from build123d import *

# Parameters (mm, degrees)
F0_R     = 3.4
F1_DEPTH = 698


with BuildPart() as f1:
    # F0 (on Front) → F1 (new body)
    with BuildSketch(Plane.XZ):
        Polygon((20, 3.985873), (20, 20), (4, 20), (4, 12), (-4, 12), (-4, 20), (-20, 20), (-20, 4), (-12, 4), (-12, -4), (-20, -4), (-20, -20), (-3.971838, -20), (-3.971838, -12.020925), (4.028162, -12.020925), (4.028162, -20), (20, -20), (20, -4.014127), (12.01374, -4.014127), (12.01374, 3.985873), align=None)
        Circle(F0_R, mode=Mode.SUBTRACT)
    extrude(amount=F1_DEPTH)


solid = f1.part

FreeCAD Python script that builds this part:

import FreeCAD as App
import Part
import Sketcher
from FreeCAD import Vector
Q = App.Units.Quantity

doc = App.newDocument("Part")
body = doc.addObject("PartDesign::Body", "Body")

# Sketch on XZ plane
sketch1 = doc.addObject("Sketcher::SketchObject", "Sketch")
body.addObject(sketch1)
sketch1.AttachmentSupport = (doc.XZ_Plane, [""])
sketch1.MapMode = "FlatFace"
sketch1.addGeometry([
    Part.LineSegment(Vector(20, 3.985873, 0), Vector(20, 20, 0)),  # 0
    Part.LineSegment(Vector(20, 20, 0), Vector(4, 20, 0)),  # 1
    Part.LineSegment(Vector(4, 20, 0), Vector(4, 12, 0)),  # 2
    Part.LineSegment(Vector(4, 12, 0), Vector(-4, 12, 0)),  # 3
    Part.LineSegment(Vector(-4, 12, 0), Vector(-4, 20, 0)),  # 4
    Part.LineSegment(Vector(-4, 20, 0), Vector(-20, 20, 0)),  # 5
    Part.LineSegment(Vector(-20, 20, 0), Vector(-20, 4, 0)),  # 6
    Part.LineSegment(Vector(-20, 4, 0), Vector(-12, 4, 0)),  # 7
    Part.LineSegment(Vector(-12, 4, 0), Vector(-12, -4, 0)),  # 8
    Part.LineSegment(Vector(-12, -4, 0), Vector(-20, -4, 0)),  # 9
    Part.LineSegment(Vector(-20, -4, 0), Vector(-20, -20, 0)),  # 10
    Part.LineSegment(Vector(-20, -20, 0), Vector(-3.971838, -20, 0)),  # 11
    Part.LineSegment(Vector(-3.971838, -20, 0), Vector(-3.971838, -12.020925, 0)),  # 12
    Part.LineSegment(Vector(-3.971838, -12.020925, 0), Vector(4.028162, -12.020925, 0)),  # 13
    Part.LineSegment(Vector(4.028162, -12.020925, 0), Vector(4.028162, -20, 0)),  # 14
    Part.LineSegment(Vector(4.028162, -20, 0), Vector(20, -20, 0)),  # 15
    Part.LineSegment(Vector(20, -20, 0), Vector(20, -4.014127, 0)),  # 16
    Part.LineSegment(Vector(20, -4.014127, 0), Vector(12.01374, -4.014127, 0)),  # 17
    Part.LineSegment(Vector(12.01374, -4.014127, 0), Vector(12.01374, 3.985873, 0)),  # 18
    Part.LineSegment(Vector(12.01374, 3.985873, 0), Vector(20, 3.985873, 0)),  # 19
    Part.Circle(Vector(0, 0, 0), Vector(0, 0, 1), 3.4),  # 20
], False)
sketch1.addConstraint([
    Sketcher.Constraint("Coincident", 0, 2, 1, 1),
    Sketcher.Constraint("Coincident", 1, 2, 2, 1),
    Sketcher.Constraint("Coincident", 2, 2, 3, 1),
    Sketcher.Constraint("Coincident", 3, 2, 4, 1),
    Sketcher.Constraint("Coincident", 4, 2, 5, 1),
    Sketcher.Constraint("Coincident", 5, 2, 6, 1),
    Sketcher.Constraint("Coincident", 6, 2, 7, 1),
    Sketcher.Constraint("Coincident", 7, 2, 8, 1),
    Sketcher.Constraint("Coincident", 8, 2, 9, 1),
    Sketcher.Constraint("Coincident", 9, 2, 10, 1),
    Sketcher.Constraint("Coincident", 10, 2, 11, 1),
    Sketcher.Constraint("Coincident", 11, 2, 12, 1),
    Sketcher.Constraint("Coincident", 12, 2, 13, 1),
    Sketcher.Constraint("Coincident", 13, 2, 14, 1),
    Sketcher.Constraint("Coincident", 14, 2, 15, 1),
    Sketcher.Constraint("Coincident", 15, 2, 16, 1),
    Sketcher.Constraint("Coincident", 16, 2, 17, 1),
    Sketcher.Constraint("Coincident", 17, 2, 18, 1),
    Sketcher.Constraint("Coincident", 18, 2, 19, 1),
    Sketcher.Constraint("Coincident", 19, 2, 0, 1),
    Sketcher.Constraint("Vertical", 0),
    Sketcher.Constraint("Horizontal", 1),
    Sketcher.Constraint("Vertical", 2),
    Sketcher.Constraint("Horizontal", 3),
    Sketcher.Constraint("Vertical", 4),
    Sketcher.Constraint("Horizontal", 5),
    Sketcher.Constraint("Vertical", 6),
    Sketcher.Constraint("Horizontal", 7),
    Sketcher.Constraint("Vertical", 8),
    Sketcher.Constraint("Horizontal", 9),
    Sketcher.Constraint("Vertical", 10),
    Sketcher.Constraint("Horizontal", 11),
    Sketcher.Constraint("Vertical", 12),
    Sketcher.Constraint("Horizontal", 13),
    Sketcher.Constraint("Vertical", 14),
    Sketcher.Constraint("Horizontal", 15),
    Sketcher.Constraint("Vertical", 16),
    Sketcher.Constraint("Horizontal", 17),
    Sketcher.Constraint("Vertical", 18),
    Sketcher.Constraint("Horizontal", 19),
    Sketcher.Constraint("Coincident", 20, 3, -1, 1),
    Sketcher.Constraint("Symmetric", 0, 2, 10, 2, -1, 1),
    Sketcher.Constraint("Symmetric", 5, 2, 15, 2, -1, 1),
    Sketcher.Constraint("Symmetric", 1, 2, 4, 2, -2),
    Sketcher.Constraint("Symmetric", 6, 2, 9, 2, -1),
    Sketcher.Constraint("Equal", 3, 7),
    Sketcher.Constraint("Equal", 9, 13),
    Sketcher.Constraint("Equal", 13, 2),
    Sketcher.Constraint("Equal", 5, 6),
    Sketcher.Constraint("Equal", 4, 8),
    Sketcher.Constraint("Equal", 8, 18),
    Sketcher.Constraint("Diameter", 20, Q("6.8 mm")),
    Sketcher.Constraint("DistanceX", 1, 2, 1, 1, Q("16 mm")),
    Sketcher.Constraint("DistanceX", 3, 2, 3, 1, Q("8 mm")),
    Sketcher.Constraint("DistanceX", 17, 2, 17, 1, Q("7.98626 mm")),
    Sketcher.Constraint("DistanceY", 13, 2, 18, 2, Q("16.006798 mm")),
    Sketcher.Constraint("DistanceX", 11, 1, 11, 2, Q("16.028162 mm")),
    Sketcher.Constraint("DistanceY", 0, 1, 0, 2, Q("16.014127 mm")),
])
pad1 = doc.addObject("PartDesign::Pad", "Pad")
body.addObject(pad1)
pad1.Profile = sketch1
pad1.Length = 698

doc.recompute()
